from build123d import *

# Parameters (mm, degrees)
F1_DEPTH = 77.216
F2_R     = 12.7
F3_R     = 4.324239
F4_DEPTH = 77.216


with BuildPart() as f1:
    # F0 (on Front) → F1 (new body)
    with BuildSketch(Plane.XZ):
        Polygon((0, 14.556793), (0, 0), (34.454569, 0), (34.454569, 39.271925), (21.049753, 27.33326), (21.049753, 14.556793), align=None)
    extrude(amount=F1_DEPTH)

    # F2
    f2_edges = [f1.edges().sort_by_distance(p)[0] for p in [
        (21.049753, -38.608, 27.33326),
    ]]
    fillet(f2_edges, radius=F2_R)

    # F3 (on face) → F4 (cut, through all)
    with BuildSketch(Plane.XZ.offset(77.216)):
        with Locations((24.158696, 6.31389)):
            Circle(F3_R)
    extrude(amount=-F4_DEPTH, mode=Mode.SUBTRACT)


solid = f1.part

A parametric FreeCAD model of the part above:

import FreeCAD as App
import Part
import Sketcher
Q = App.Units.Quantity


def edges_at(feature, points):
    """Names of the edges that pass closest to the given points."""
    edges = feature.Shape.Edges
    near = lambda p: min(range(len(edges)), key=lambda i: edges[i].distToShape(Part.Vertex(*p))[0])
    return sorted({f"Edge{near(p) + 1}" for p in points})


def add_polygon(sketch, points):
    """Adds a closed chain of lines whose ends are joined by coincident constraints."""
    first, n = sketch.GeometryCount, len(points)
    for a, b in zip(points, points[1:] + points[:1]):
        sketch.addGeometry(Part.LineSegment(App.Vector(*a, 0), App.Vector(*b, 0)), False)
    for i in range(n):
        sketch.addConstraint(Sketcher.Constraint("Coincident", first + i, 2, first + (i + 1) % n, 1))

doc = App.newDocument("Part")
body = doc.addObject("PartDesign::Body", "Body")

sketch1 = body.newObject("Sketcher::SketchObject", "Sketch")
sketch1.AttachmentSupport = (doc.getObject("XZ_Plane"), [""])
sketch1.MapMode = "FlatFace"
add_polygon(sketch1, [(0, 14.556793), (0, 0), (34.454569, 0), (34.454569, 39.271925), (21.049753, 27.33326), (21.049753, 14.556793)])
sketch1.addConstraint(Sketcher.Constraint("Vertical", 0))
sketch1.addConstraint(Sketcher.Constraint("Horizontal", 1))
sketch1.addConstraint(Sketcher.Constraint("Vertical", 2))
sketch1.addConstraint(Sketcher.Constraint("Vertical", 4))
sketch1.addConstraint(Sketcher.Constraint("Horizontal", 5))
sketch1.addConstraint(Sketcher.Constraint("Coincident", 0, 2, -1, 1))
sketch1.addConstraint(Sketcher.Constraint("DistanceX", 1, 1, 1, 2, 34.454569))
sketch1.addConstraint(Sketcher.Constraint("Distance", 3, 17.95051))
sketch1.addConstraint(Sketcher.Constraint("DistanceX", 5, 2, 5, 1, 21.049753))
sketch1.addConstraint(Sketcher.Constraint("DistanceY", 0, 2, 0, 1, 14.556793))
sketch1.addConstraint(Sketcher.Constraint("DistanceY", 2, 1, 2, 2, 39.271925))
pad1 = body.newObject("PartDesign::Pad", "Pad")
pad1.Profile = sketch1
pad1.Length = Q("3.04 in")
doc.recompute()

fillet = body.newObject("PartDesign::Fillet", "Fillet")
fillet.Base = (pad1, edges_at(pad1, [(21.05, -38.608, 27.333)]))
fillet.Radius = Q("0.5 in")

sketch2 = body.newObject("Sketcher::SketchObject", "Sketch001")
sketch2.AttachmentSupport = (doc.getObject("XZ_Plane"), [""])
sketch2.MapMode = "FlatFace"
sketch2.AttachmentOffset = App.Placement(App.Vector(0, 0, 3.04 * 25.4), App.Rotation())
sketch2.addGeometry(Part.Circle(App.Vector(24.158696, 6.31389, 0), App.Vector(0, 0, 1), 4.324239), False)
sketch2.addConstraint(Sketcher.Constraint("Diameter", 0, 8.648478))
sketch2.addConstraint(Sketcher.Constraint("DistanceY", -1, 1, 0, 3, 6.31389))
sketch2.addConstraint(Sketcher.Constraint("DistanceX", -1, 1, 0, 3, 24.158696))
pocket1 = body.newObject("PartDesign::Pocket", "Pocket")
pocket1.Profile = sketch2
pocket1.Type = "ThroughAll"

doc.recompute()
